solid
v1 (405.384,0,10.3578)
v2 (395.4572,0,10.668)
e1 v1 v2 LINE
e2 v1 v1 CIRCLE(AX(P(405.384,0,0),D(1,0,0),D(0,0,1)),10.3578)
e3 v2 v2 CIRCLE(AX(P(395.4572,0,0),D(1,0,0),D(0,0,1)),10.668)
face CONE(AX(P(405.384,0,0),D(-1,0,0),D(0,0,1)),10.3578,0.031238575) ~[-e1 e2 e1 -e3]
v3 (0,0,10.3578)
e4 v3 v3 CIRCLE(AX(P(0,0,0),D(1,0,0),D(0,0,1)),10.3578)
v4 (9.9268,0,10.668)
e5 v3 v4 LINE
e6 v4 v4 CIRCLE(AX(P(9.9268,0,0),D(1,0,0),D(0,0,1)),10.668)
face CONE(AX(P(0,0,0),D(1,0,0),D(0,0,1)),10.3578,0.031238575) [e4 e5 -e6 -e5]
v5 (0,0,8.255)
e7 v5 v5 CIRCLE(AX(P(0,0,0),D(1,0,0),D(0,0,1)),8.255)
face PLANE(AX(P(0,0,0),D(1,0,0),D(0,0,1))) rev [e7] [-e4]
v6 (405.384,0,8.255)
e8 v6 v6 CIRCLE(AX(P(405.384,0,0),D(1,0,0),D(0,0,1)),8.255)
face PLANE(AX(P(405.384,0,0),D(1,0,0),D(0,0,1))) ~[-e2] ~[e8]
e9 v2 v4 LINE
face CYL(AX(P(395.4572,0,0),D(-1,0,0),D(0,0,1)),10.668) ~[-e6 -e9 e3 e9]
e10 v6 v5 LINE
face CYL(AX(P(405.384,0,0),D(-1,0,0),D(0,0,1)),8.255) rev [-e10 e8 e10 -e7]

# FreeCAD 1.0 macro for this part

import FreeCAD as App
import Part
import Sketcher
Q = App.Units.Quantity

doc = App.newDocument("Part")
body = doc.addObject("PartDesign::Body", "Body")

sketch1 = body.newObject("Sketcher::SketchObject", "Sketch")
sketch1.AttachmentSupport = (doc.getObject("XZ_Plane"), [""])
sketch1.MapMode = "FlatFace"
sketch1.addGeometry(Part.LineSegment(App.Vector(405.4, 10.4, 0), App.Vector(405.4, 8.3, 0)), False)
sketch1.addGeometry(Part.LineSegment(App.Vector(405.4, 8.3, 0), App.Vector(0, 8.3, 0)), False)
sketch1.addGeometry(Part.LineSegment(App.Vector(0, 8.3, 0), App.Vector(0, 10.4, 0)), False)
sketch1.addGeometry(Part.LineSegment(App.Vector(0, 10.4, 0), App.Vector(9.9, 10.7, 0)), False)
sketch1.addGeometry(Part.LineSegment(App.Vector(9.9, 10.7, 0), App.Vector(395.5, 10.7, 0)), False)
sketch1.addGeometry(Part.LineSegment(App.Vector(395.5, 10.7, 0), App.Vector(405.4, 10.4, 0)), False)
sketch1.addConstraint(Sketcher.Constraint("Coincident", 0, 2, 1, 1))
sketch1.addConstraint(Sketcher.Constraint("Coincident", 1, 2, 2, 1))
sketch1.addConstraint(Sketcher.Constraint("Coincident", 2, 2, 3, 1))
sketch1.addConstraint(Sketcher.Constraint("Coincident", 3, 2, 4, 1))
sketch1.addConstraint(Sketcher.Constraint("Coincident", 4, 2, 5, 1))
sketch1.addConstraint(Sketcher.Constraint("Coincident", 5, 2, 0, 1))
sketch1.addConstraint(Sketcher.Constraint("Vertical", 0))
sketch1.addConstraint(Sketcher.Constraint("Horizontal", 1))
sketch1.addConstraint(Sketcher.Constraint("Vertical", 2))
sketch1.addConstraint(Sketcher.Constraint("Horizontal", 4))
sketch1.addConstraint(Sketcher.Constraint("PointOnObject", 1, 2, -2))
sketch1.addConstraint(Sketcher.Constraint("Horizontal", 2, 2, 5, 2))
sketch1.addConstraint(Sketcher.Constraint("Equal", 3, 5))
sketch1.addConstraint(Sketcher.Constraint("DistanceX", 1, 2, 1, 1, Q("15.96 in")))
sketch1.addConstraint(Sketcher.Constraint("Angle", 3, Q("1.7898 deg")))
sketch1.addConstraint(Sketcher.Constraint("DistanceY", -1, 1, 3, 2, Q("0.42 in")))
sketch1.addConstraint(Sketcher.Constraint("Distance", 3, Q("0.391 in")))
sketch1.addConstraint(Sketcher.Constraint("DistanceY", -1, 1, 0, 2, Q("0.325 in")))
revolution = body.newObject("PartDesign::Revolution", "Revolution")
revolution.Profile = sketch1
revolution.ReferenceAxis = (sketch1, ["H_Axis"])
revolution.Angle = 360

doc.recompute()
